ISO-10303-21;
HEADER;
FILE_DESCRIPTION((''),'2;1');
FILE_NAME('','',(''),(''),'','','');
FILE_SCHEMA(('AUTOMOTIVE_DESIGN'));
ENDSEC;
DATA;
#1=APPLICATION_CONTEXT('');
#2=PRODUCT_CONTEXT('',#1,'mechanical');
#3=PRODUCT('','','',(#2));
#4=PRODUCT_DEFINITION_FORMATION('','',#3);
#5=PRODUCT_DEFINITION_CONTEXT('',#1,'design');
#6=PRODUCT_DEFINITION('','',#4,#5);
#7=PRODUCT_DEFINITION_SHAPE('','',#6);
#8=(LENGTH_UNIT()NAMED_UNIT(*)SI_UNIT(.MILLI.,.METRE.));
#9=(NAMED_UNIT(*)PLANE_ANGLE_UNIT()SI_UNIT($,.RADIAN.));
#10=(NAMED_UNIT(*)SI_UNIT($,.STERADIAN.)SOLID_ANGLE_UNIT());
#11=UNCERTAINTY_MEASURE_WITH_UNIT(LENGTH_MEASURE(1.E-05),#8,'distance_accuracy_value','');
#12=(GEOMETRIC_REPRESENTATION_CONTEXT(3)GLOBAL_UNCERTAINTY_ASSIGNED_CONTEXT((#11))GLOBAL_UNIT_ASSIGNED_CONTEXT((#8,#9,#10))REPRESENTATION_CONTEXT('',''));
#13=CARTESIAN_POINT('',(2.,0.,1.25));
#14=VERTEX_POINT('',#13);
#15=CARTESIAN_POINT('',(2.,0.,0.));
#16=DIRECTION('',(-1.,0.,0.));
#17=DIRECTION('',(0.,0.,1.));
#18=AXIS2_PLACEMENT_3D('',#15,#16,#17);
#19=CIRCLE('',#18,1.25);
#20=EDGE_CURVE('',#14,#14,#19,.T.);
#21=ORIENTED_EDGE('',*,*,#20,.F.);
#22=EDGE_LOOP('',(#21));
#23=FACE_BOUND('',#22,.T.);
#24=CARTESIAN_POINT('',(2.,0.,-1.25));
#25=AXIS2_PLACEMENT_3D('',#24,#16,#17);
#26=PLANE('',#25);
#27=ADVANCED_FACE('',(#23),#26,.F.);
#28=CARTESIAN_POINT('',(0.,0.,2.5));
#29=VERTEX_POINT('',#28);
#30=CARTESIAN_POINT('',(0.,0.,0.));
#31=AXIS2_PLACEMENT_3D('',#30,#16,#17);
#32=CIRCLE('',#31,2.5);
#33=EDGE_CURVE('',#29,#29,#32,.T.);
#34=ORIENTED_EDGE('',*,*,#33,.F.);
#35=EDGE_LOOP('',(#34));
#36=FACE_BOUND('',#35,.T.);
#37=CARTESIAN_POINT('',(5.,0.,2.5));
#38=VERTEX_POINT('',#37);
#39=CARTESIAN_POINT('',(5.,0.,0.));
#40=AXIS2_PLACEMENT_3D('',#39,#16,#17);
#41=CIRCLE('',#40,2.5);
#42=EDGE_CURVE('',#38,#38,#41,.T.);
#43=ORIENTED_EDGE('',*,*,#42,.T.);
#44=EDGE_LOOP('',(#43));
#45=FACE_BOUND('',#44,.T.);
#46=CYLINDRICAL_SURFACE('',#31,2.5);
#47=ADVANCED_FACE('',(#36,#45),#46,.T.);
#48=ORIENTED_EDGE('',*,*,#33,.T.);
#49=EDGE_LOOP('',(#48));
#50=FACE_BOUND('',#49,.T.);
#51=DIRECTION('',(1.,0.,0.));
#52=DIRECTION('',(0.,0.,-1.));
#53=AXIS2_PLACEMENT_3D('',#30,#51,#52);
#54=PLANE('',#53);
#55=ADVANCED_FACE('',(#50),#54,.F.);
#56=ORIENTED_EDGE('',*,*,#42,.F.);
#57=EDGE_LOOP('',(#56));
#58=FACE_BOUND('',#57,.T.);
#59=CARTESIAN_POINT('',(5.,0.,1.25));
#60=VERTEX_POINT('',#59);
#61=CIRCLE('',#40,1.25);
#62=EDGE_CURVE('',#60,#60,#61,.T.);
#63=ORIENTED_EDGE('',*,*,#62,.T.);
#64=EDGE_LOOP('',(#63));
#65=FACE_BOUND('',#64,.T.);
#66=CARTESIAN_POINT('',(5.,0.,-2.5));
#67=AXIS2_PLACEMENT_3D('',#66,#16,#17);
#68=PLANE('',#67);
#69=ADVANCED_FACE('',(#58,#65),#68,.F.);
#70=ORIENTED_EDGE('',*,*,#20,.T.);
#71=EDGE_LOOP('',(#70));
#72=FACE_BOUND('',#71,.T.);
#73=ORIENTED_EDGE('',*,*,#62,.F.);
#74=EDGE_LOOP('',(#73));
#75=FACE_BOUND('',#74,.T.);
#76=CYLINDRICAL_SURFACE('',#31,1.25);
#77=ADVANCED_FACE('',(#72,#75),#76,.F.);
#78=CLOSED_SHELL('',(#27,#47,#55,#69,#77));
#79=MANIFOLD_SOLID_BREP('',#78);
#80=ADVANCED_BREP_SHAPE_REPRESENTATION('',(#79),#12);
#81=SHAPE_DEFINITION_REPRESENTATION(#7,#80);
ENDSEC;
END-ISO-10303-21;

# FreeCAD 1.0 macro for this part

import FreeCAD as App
import Part
import Sketcher
from FreeCAD import Vector


def add_polygon(sketch, points):
    """Adds a closed chain of lines whose ends are joined by coincident constraints."""
    first, n = sketch.GeometryCount, len(points)
    for a, b in zip(points, points[1:] + points[:1]):
        sketch.addGeometry(Part.LineSegment(App.Vector(*a, 0), App.Vector(*b, 0)), False)
    for i in range(n):
        sketch.addConstraint(Sketcher.Constraint("Coincident", first + i, 2, first + (i + 1) % n, 1))

doc = App.newDocument("Part")
body = doc.addObject("PartDesign::Body", "Body")

sketch1 = doc.addObject("Sketcher::SketchObject", "Sketch")
body.addObject(sketch1)
sketch1.AttachmentSupport = (doc.XZ_Plane, [""])
sketch1.MapMode = "FlatFace"
add_polygon(sketch1, [(0, -2.5), (0, 0), (2, 0), (2, -1.25), (5, -1.25), (5, -2.5)])
sketch1.addConstraint([
    Sketcher.Constraint("Vertical", 0),
    Sketcher.Constraint("Horizontal", 1),
    Sketcher.Constraint("Vertical", 2),
    Sketcher.Constraint("Horizontal", 3),
    Sketcher.Constraint("Vertical", 4),
    Sketcher.Constraint("Horizontal", 5),
    Sketcher.Constraint("Coincident", 0, 2, -1, 1),
    Sketcher.Constraint("Equal", 2, 4),
    Sketcher.Constraint("DistanceX", 1, 1, 1, 2, 2.0),
    Sketcher.Constraint("DistanceX", 3, 1, 3, 2, 3.0),
    Sketcher.Constraint("DistanceY", 0, 1, 0, 2, 2.5),
])
revolution = doc.addObject("PartDesign::Revolution", "Revolution")
body.addObject(revolution)
revolution.Profile = sketch1
revolution.ReferenceAxis = (sketch1, ["H_Axis"])
revolution.Angle = 360

doc.recompute()
